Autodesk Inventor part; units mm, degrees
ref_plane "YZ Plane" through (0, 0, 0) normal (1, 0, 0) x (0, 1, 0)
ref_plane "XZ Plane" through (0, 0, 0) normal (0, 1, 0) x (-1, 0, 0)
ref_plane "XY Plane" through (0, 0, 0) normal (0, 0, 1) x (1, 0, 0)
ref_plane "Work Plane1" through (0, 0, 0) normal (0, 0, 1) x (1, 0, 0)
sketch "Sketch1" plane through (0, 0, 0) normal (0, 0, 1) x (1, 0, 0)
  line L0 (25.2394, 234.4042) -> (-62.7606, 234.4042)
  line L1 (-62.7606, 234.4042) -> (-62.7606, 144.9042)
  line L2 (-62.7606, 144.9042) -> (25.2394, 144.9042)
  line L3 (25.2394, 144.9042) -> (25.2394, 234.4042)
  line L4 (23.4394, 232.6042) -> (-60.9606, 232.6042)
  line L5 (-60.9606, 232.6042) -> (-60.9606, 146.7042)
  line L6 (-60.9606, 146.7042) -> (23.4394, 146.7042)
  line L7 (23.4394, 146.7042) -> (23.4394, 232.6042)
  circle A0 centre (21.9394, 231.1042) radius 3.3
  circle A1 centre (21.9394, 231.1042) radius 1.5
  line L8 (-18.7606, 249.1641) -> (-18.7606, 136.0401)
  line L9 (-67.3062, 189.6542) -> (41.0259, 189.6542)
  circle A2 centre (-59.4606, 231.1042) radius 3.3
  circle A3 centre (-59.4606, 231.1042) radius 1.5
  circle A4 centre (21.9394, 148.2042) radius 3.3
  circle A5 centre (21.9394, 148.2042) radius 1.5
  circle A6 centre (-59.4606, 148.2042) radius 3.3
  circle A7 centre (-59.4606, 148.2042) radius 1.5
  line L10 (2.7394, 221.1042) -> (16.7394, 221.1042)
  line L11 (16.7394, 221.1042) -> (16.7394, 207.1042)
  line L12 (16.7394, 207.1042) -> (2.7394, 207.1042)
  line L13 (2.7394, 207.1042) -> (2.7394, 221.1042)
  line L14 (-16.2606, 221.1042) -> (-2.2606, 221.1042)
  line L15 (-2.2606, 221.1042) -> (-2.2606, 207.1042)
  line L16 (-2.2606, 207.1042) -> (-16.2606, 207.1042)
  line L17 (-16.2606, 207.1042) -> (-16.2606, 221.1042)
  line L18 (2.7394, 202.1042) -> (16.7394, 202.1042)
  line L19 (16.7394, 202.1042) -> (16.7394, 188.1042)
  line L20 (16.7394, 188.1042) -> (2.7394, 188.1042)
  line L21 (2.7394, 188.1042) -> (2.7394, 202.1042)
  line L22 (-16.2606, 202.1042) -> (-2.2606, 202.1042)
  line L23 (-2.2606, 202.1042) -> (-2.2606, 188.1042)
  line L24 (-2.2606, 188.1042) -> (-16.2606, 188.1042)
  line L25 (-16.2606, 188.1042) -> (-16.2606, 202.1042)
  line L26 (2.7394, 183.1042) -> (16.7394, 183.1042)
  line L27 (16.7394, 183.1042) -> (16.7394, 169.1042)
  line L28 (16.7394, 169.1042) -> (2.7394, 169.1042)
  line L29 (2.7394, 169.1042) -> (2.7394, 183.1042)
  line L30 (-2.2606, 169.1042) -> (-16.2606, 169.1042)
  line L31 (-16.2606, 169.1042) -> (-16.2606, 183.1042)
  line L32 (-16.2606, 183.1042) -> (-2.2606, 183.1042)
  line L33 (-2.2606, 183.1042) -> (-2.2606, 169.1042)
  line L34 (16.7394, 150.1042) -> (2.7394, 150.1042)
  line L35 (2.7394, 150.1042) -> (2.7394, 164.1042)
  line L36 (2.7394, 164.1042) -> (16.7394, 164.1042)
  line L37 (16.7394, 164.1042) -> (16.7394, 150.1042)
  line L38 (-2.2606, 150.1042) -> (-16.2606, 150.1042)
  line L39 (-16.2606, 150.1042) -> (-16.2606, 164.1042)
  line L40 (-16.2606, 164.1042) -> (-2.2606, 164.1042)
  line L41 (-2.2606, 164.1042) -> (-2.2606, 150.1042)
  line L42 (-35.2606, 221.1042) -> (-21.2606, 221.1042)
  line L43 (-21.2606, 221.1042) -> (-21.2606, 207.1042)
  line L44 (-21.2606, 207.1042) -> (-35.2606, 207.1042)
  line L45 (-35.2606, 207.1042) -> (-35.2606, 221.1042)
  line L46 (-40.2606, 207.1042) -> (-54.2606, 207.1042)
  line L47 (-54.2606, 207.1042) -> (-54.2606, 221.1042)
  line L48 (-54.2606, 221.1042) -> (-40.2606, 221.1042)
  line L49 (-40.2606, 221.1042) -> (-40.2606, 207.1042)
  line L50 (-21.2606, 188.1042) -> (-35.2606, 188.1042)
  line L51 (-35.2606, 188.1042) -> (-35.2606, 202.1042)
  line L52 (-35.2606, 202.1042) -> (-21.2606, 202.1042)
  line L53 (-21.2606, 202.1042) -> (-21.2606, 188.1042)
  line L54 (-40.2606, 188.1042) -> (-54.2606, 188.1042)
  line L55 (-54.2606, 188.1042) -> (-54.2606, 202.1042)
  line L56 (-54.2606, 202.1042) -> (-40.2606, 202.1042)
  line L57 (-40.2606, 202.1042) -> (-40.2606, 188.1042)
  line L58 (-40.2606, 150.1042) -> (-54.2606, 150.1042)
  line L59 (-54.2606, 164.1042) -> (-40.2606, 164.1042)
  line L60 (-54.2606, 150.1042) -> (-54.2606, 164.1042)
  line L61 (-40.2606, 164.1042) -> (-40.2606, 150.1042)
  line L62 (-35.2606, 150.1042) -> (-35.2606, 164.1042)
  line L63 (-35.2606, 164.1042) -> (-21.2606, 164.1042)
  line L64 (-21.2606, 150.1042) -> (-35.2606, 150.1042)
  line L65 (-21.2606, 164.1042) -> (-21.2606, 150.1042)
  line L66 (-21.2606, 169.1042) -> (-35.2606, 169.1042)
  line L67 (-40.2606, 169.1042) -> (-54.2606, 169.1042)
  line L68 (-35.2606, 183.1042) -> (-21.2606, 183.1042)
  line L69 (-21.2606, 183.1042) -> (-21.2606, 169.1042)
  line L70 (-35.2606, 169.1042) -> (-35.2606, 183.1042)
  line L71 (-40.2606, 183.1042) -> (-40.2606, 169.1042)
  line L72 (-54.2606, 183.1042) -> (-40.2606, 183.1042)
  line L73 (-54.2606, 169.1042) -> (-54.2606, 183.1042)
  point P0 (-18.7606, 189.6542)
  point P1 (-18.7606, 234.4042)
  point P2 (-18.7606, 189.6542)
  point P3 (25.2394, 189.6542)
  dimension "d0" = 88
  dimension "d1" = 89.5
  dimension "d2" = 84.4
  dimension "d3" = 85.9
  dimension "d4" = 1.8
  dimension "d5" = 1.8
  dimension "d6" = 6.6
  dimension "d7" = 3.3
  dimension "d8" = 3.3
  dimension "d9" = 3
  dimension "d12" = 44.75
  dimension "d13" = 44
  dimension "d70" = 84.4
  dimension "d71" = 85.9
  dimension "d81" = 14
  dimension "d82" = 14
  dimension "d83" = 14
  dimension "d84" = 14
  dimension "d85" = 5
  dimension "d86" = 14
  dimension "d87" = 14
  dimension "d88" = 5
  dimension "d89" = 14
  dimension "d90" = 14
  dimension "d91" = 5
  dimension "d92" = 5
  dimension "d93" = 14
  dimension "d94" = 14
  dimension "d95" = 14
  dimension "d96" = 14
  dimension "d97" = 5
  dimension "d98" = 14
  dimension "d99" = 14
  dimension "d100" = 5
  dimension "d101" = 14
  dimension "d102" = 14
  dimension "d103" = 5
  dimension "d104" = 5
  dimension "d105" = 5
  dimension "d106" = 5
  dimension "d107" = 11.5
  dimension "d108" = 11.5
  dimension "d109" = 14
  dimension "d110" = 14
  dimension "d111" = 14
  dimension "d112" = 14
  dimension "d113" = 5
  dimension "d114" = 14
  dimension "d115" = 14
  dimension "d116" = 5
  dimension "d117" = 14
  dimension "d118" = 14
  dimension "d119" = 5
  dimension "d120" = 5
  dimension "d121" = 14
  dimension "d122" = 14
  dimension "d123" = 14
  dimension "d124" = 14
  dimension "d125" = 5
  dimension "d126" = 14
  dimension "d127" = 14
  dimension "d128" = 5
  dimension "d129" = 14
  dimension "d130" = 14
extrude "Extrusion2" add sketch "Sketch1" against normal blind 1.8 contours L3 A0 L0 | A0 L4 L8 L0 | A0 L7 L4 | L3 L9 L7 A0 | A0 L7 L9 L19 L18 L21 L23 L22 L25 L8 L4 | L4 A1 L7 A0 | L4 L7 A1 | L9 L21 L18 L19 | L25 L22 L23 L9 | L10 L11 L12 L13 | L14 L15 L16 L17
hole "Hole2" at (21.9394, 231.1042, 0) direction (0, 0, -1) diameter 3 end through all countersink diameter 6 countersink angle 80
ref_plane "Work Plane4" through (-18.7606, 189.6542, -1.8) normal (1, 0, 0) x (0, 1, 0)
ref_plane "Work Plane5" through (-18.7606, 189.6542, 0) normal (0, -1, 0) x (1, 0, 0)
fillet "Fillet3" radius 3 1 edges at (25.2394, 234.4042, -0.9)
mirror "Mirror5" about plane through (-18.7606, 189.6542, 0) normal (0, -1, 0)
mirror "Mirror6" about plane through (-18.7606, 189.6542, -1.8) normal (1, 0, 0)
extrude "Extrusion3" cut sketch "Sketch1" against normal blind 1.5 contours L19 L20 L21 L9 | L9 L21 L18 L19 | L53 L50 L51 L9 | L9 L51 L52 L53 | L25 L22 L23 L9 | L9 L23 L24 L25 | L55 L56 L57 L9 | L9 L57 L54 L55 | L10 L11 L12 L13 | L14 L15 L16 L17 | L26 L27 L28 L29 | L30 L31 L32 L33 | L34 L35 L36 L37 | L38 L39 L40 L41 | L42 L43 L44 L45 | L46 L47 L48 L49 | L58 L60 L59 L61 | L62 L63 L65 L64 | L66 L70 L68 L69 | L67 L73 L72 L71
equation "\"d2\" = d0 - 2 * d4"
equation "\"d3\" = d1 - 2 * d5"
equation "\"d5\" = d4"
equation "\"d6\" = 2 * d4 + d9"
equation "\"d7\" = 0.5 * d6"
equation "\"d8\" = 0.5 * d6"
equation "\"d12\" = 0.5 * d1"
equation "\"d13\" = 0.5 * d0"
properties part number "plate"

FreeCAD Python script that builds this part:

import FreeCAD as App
import Part
import Sketcher
from FreeCAD import Vector
Q = App.Units.Quantity


def edges_at(feature, points):
    """Names of the edges that pass closest to the given points."""
    edges = feature.Shape.Edges
    near = lambda p: min(range(len(edges)), key=lambda i: edges[i].distToShape(Part.Vertex(*p))[0])
    return sorted({f"Edge{near(p) + 1}" for p in points})

doc = App.newDocument("Part")
params = doc.addObject("Spreadsheet::Sheet", "Params")
for row, (alias, value) in enumerate([
    ("sketch1_diameter", "3 mm"),
    ("sketch1_width", "44 mm"),
    ("sketch1_height", "44.75 mm"),
    ("pad1_length", "1.8 mm"),
    ("sketch2_diameter", "3 mm"),
    ("hole_diameter", "3 mm"),
    ("hole_csink_diameter", "6 mm"),
    ("fillet_radius", "3 mm"),
    ("sketch3_width", "14 mm"),
    ("pocket1_length", "1.5 mm"),
], start=1):
    params.set(f"A{row}", alias)
    params.set(f"B{row}", "=" + value)
    params.setAlias(f"B{row}", alias)

body = doc.addObject("PartDesign::Body", "Body")

sketch1 = body.newObject("Sketcher::SketchObject", "Sketch")
sketch1.AttachmentSupport = (doc.getObject("XY_Plane"), [""])
sketch1.MapMode = "FlatFace"
sketch1.addGeometry([
    Part.LineSegment(Vector(25.2, 234.4, 0), Vector(-18.8, 234.4, 0)),
    Part.LineSegment(Vector(-18.8, 234.4, 0), Vector(-18.8, 189.7, 0)),
    Part.LineSegment(Vector(-18.8, 189.7, 0), Vector(25.2, 189.7, 0)),
    Part.LineSegment(Vector(25.2, 189.7, 0), Vector(25.2, 234.4, 0)),
    Part.Circle(Vector(21.9, 231.1, 0), Vector(0, 0, 1), 1.5),
], False)
sketch1.addConstraint([
    Sketcher.Constraint("Coincident", 0, 2, 1, 1),
    Sketcher.Constraint("Coincident", 1, 2, 2, 1),
    Sketcher.Constraint("Coincident", 2, 2, 3, 1),
    Sketcher.Constraint("Coincident", 3, 2, 0, 1),
    Sketcher.Constraint("Horizontal", 0),
    Sketcher.Constraint("Vertical", 1),
    Sketcher.Constraint("Horizontal", 2),
    Sketcher.Constraint("Vertical", 3),
    Sketcher.Constraint("Diameter", 4, Q("3 mm")),
    Sketcher.Constraint("DistanceX", 0, 2, 0, 1, Q("44 mm")),
    Sketcher.Constraint("DistanceY", 1, 2, 1, 1, Q("44.75 mm")),
    Sketcher.Constraint("DistanceY", 4, 3, 0, 2, Q("3.3 mm")),
    Sketcher.Constraint("DistanceX", 4, 3, 2, 2, Q("3.3 mm")),
    Sketcher.Constraint("DistanceX", -1, 1, 4, 3, Q("21.9394 mm")),
    Sketcher.Constraint("DistanceY", -1, 1, 4, 3, Q("231.1042 mm")),
])
sketch1.setExpression("Constraints[8]", "Params.sketch1_diameter")
sketch1.setExpression("Constraints[9]", "Params.sketch1_width")
sketch1.setExpression("Constraints[10]", "Params.sketch1_height")
pad1 = body.newObject("PartDesign::Pad", "Pad")
pad1.Profile = sketch1
pad1.setExpression("Length", "Params.pad1_length")
pad1.Reversed = True

sketch2 = body.newObject("Sketcher::SketchObject", "Sketch001")
sketch2.AttachmentSupport = (doc.getObject("XY_Plane"), [""])
sketch2.MapMode = "FlatFace"
sketch2.addGeometry(Part.Circle(Vector(21.9, 231.1, 0), Vector(0, 0, 1), 1.5), False)
sketch2.addConstraint([
    Sketcher.Constraint("Diameter", 0, Q("3 mm")),
    Sketcher.Constraint("DistanceX", -1, 1, 0, 3, Q("21.9394 mm")),
    Sketcher.Constraint("DistanceY", -1, 1, 0, 3, Q("231.1042 mm")),
])
sketch2.setExpression("Constraints[0]", "Params.sketch2_diameter")
doc.recompute()
hole = body.newObject("PartDesign::Hole", "Hole")
hole.Profile = sketch2
hole.ThreadType = "None"
hole.setExpression("Diameter", "Params.hole_diameter")
hole.DepthType = "ThroughAll"
hole.HoleCutType = "Countersink"
hole.setExpression("HoleCutDiameter", "Params.hole_csink_diameter")
hole.HoleCutCountersinkAngle = 80
doc.recompute()

fillet = body.newObject("PartDesign::Fillet", "Fillet")
fillet.Base = (hole, edges_at(hole, [(25.239, 234.404, -0.9)]))
fillet.setExpression("Radius", "Params.fillet_radius")
doc.recompute()

datumplane = body.newObject("PartDesign::Plane", "DatumPlane")
datumplane.AttachmentSupport = (doc.getObject("XZ_Plane"), [""])
datumplane.MapMode = "FlatFace"
datumplane.AttachmentOffset = App.Placement(Vector(0, 0, -189.6542), App.Rotation())
mirrored = body.newObject("PartDesign::Mirrored", "Mirrored")
mirrored.TransformMode = "Transform body"
mirrored.MirrorPlane = (datumplane, [""])
body.Tip = mirrored
doc.recompute()

datumplane2 = body.newObject("PartDesign::Plane", "DatumPlane001")
datumplane2.AttachmentSupport = (doc.getObject("YZ_Plane"), [""])
datumplane2.MapMode = "FlatFace"
datumplane2.AttachmentOffset = App.Placement(Vector(0, 0, -18.7606), App.Rotation())
mirrored2 = body.newObject("PartDesign::Mirrored", "Mirrored001")
mirrored2.TransformMode = "Transform body"
mirrored2.MirrorPlane = (datumplane2, [""])
body.Tip = mirrored2

sketch3 = body.newObject("Sketcher::SketchObject", "Sketch002")
sketch3.AttachmentSupport = (doc.getObject("XY_Plane"), [""])
sketch3.MapMode = "FlatFace"
sketch3.addGeometry([
    Part.LineSegment(Vector(17, 188, 0), Vector(17, 202, 0)),
    Part.LineSegment(Vector(17, 202, 0), Vector(3, 202, 0)),
    Part.LineSegment(Vector(3, 202, 0), Vector(3, 188, 0)),
    Part.LineSegment(Vector(3, 188, 0), Vector(17, 188, 0)),
    Part.LineSegment(Vector(-21, 188, 0), Vector(-21, 202, 0)),
    Part.LineSegment(Vector(-21, 202, 0), Vector(-35, 202, 0)),
    Part.LineSegment(Vector(-35, 202, 0), Vector(-35, 188, 0)),
    Part.LineSegment(Vector(-35, 188, 0), Vector(-21, 188, 0)),
    Part.LineSegment(Vector(-16, 202, 0), Vector(-16, 188, 0)),
    Part.LineSegment(Vector(-16, 188, 0), Vector(-2, 188, 0)),
    Part.LineSegment(Vector(-2, 188, 0), Vector(-2, 202, 0)),
    Part.LineSegment(Vector(-2, 202, 0), Vector(-16, 202, 0)),
    Part.LineSegment(Vector(-54, 202, 0), Vector(-54, 188, 0)),
    Part.LineSegment(Vector(-54, 188, 0), Vector(-40, 188, 0)),
    Part.LineSegment(Vector(-40, 188, 0), Vector(-40, 202, 0)),
    Part.LineSegment(Vector(-40, 202, 0), Vector(-54, 202, 0)),
    Part.LineSegment(Vector(17, 221, 0), Vector(3, 221, 0)),
    Part.LineSegment(Vector(3, 221, 0), Vector(3, 207, 0)),
    Part.LineSegment(Vector(3, 207, 0), Vector(17, 207, 0)),
    Part.LineSegment(Vector(17, 207, 0), Vector(17, 221, 0)),
    Part.LineSegment(Vector(-2, 221, 0), Vector(-16, 221, 0)),
    Part.LineSegment(Vector(-16, 221, 0), Vector(-16, 207, 0)),
    Part.LineSegment(Vector(-16, 207, 0), Vector(-2, 207, 0)),
    Part.LineSegment(Vector(-2, 207, 0), Vector(-2, 221, 0)),
    Part.LineSegment(Vector(17, 183, 0), Vector(3, 183, 0)),
    Part.LineSegment(Vector(3, 183, 0), Vector(3, 169, 0)),
    Part.LineSegment(Vector(3, 169, 0), Vector(17, 169, 0)),
    Part.LineSegment(Vector(17, 169, 0), Vector(17, 183, 0)),
    Part.LineSegment(Vector(-16, 169, 0), Vector(-2, 169, 0)),
    Part.LineSegment(Vector(-2, 169, 0), Vector(-2, 183, 0)),
    Part.LineSegment(Vector(-2, 183, 0), Vector(-16, 183, 0)),
    Part.LineSegment(Vector(-16, 183, 0), Vector(-16, 169, 0)),
    Part.LineSegment(Vector(3, 150, 0), Vector(17, 150, 0)),
    Part.LineSegment(Vector(17, 150, 0), Vector(17, 164, 0)),
    Part.LineSegment(Vector(17, 164, 0), Vector(3, 164, 0)),
    Part.LineSegment(Vector(3, 164, 0), Vector(3, 150, 0)),
    Part.LineSegment(Vector(-16, 150, 0), Vector(-2, 150, 0)),
    Part.LineSegment(Vector(-2, 150, 0), Vector(-2, 164, 0)),
    Part.LineSegment(Vector(-2, 164, 0), Vector(-16, 164, 0)),
    Part.LineSegment(Vector(-16, 164, 0), Vector(-16, 150, 0)),
    Part.LineSegment(Vector(-21, 221, 0), Vector(-35, 221, 0)),
    Part.LineSegment(Vector(-35, 221, 0), Vector(-35, 207, 0)),
    Part.LineSegment(Vector(-35, 207, 0), Vector(-21, 207, 0)),
    Part.LineSegment(Vector(-21, 207, 0), Vector(-21, 221, 0)),
    Part.LineSegment(Vector(-54, 207, 0), Vector(-40, 207, 0)),
    Part.LineSegment(Vector(-40, 207, 0), Vector(-40, 221, 0)),
    Part.LineSegment(Vector(-40, 221, 0), Vector(-54, 221, 0)),
    Part.LineSegment(Vector(-54, 221, 0), Vector(-54, 207, 0)),
    Part.LineSegment(Vector(-54, 150, 0), Vector(-40, 150, 0)),
    Part.LineSegment(Vector(-40, 150, 0), Vector(-40, 164, 0)),
    Part.LineSegment(Vector(-40, 164, 0), Vector(-54, 164, 0)),
    Part.LineSegment(Vector(-54, 164, 0), Vector(-54, 150, 0)),
    Part.LineSegment(Vector(-35, 164, 0), Vector(-35, 150, 0)),
    Part.LineSegment(Vector(-35, 150, 0), Vector(-21, 150, 0)),
    Part.LineSegment(Vector(-21, 150, 0), Vector(-21, 164, 0)),
    Part.LineSegment(Vector(-21, 164, 0), Vector(-35, 164, 0)),
    Part.LineSegment(Vector(-35, 169, 0), Vector(-21, 169, 0)),
    Part.LineSegment(Vector(-21, 169, 0), Vector(-21, 183, 0)),
    Part.LineSegment(Vector(-21, 183, 0), Vector(-35, 183, 0)),
    Part.LineSegment(Vector(-35, 183, 0), Vector(-35, 169, 0)),
    Part.LineSegment(Vector(-54, 169, 0), Vector(-40, 169, 0)),
    Part.LineSegment(Vector(-40, 169, 0), Vector(-40, 183, 0)),
    Part.LineSegment(Vector(-40, 183, 0), Vector(-54, 183, 0)),
    Part.LineSegment(Vector(-54, 183, 0), Vector(-54, 169, 0)),
], False)
sketch3.addConstraint([
    Sketcher.Constraint("Coincident", 0, 2, 1, 1),
    Sketcher.Constraint("Coincident", 1, 2, 2, 1),
    Sketcher.Constraint("Coincident", 2, 2, 3, 1),
    Sketcher.Constraint("Coincident", 3, 2, 0, 1),
    Sketcher.Constraint("Coincident", 4, 2, 5, 1),
    Sketcher.Constraint("Coincident", 5, 2, 6, 1),
    Sketcher.Constraint("Coincident", 6, 2, 7, 1),
    Sketcher.Constraint("Coincident", 7, 2, 4, 1),
    Sketcher.Constraint("Coincident", 8, 2, 9, 1),
    Sketcher.Constraint("Coincident", 9, 2, 10, 1),
    Sketcher.Constraint("Coincident", 10, 2, 11, 1),
    Sketcher.Constraint("Coincident", 11, 2, 8, 1),
    Sketcher.Constraint("Coincident", 12, 2, 13, 1),
    Sketcher.Constraint("Coincident", 13, 2, 14, 1),
    Sketcher.Constraint("Coincident", 14, 2, 15, 1),
    Sketcher.Constraint("Coincident", 15, 2, 12, 1),
    Sketcher.Constraint("Coincident", 16, 2, 17, 1),
    Sketcher.Constraint("Coincident", 17, 2, 18, 1),
    Sketcher.Constraint("Coincident", 18, 2, 19, 1),
    Sketcher.Constraint("Coincident", 19, 2, 16, 1),
    Sketcher.Constraint("Coincident", 20, 2, 21, 1),
    Sketcher.Constraint("Coincident", 21, 2, 22, 1),
    Sketcher.Constraint("Coincident", 22, 2, 23, 1),
    Sketcher.Constraint("Coincident", 23, 2, 20, 1),
    Sketcher.Constraint("Coincident", 24, 2, 25, 1),
    Sketcher.Constraint("Coincident", 25, 2, 26, 1),
    Sketcher.Constraint("Coincident", 26, 2, 27, 1),
    Sketcher.Constraint("Coincident", 27, 2, 24, 1),
    Sketcher.Constraint("Coincident", 28, 2, 29, 1),
    Sketcher.Constraint("Coincident", 29, 2, 30, 1),
    Sketcher.Constraint("Coincident", 30, 2, 31, 1),
    Sketcher.Constraint("Coincident", 31, 2, 28, 1),
    Sketcher.Constraint("Coincident", 32, 2, 33, 1),
    Sketcher.Constraint("Coincident", 33, 2, 34, 1),
    Sketcher.Constraint("Coincident", 34, 2, 35, 1),
    Sketcher.Constraint("Coincident", 35, 2, 32, 1),
    Sketcher.Constraint("Coincident", 36, 2, 37, 1),
    Sketcher.Constraint("Coincident", 37, 2, 38, 1),
    Sketcher.Constraint("Coincident", 38, 2, 39, 1),
    Sketcher.Constraint("Coincident", 39, 2, 36, 1),
    Sketcher.Constraint("Coincident", 40, 2, 41, 1),
    Sketcher.Constraint("Coincident", 41, 2, 42, 1),
    Sketcher.Constraint("Coincident", 42, 2, 43, 1),
    Sketcher.Constraint("Coincident", 43, 2, 40, 1),
    Sketcher.Constraint("Coincident", 44, 2, 45, 1),
    Sketcher.Constraint("Coincident", 45, 2, 46, 1),
    Sketcher.Constraint("Coincident", 46, 2, 47, 1),
    Sketcher.Constraint("Coincident", 47, 2, 44, 1),
    Sketcher.Constraint("Coincident", 48, 2, 49, 1),
    Sketcher.Constraint("Coincident", 49, 2, 50, 1),
    Sketcher.Constraint("Coincident", 50, 2, 51, 1),
    Sketcher.Constraint("Coincident", 51, 2, 48, 1),
    Sketcher.Constraint("Coincident", 52, 2, 53, 1),
    Sketcher.Constraint("Coincident", 53, 2, 54, 1),
    Sketcher.Constraint("Coincident", 54, 2, 55, 1),
    Sketcher.Constraint("Coincident", 55, 2, 52, 1),
    Sketcher.Constraint("Coincident", 56, 2, 57, 1),
    Sketcher.Constraint("Coincident", 57, 2, 58, 1),
    Sketcher.Constraint("Coincident", 58, 2, 59, 1),
    Sketcher.Constraint("Coincident", 59, 2, 56, 1),
    Sketcher.Constraint("Coincident", 60, 2, 61, 1),
    Sketcher.Constraint("Coincident", 61, 2, 62, 1),
    Sketcher.Constraint("Coincident", 62, 2, 63, 1),
    Sketcher.Constraint("Coincident", 63, 2, 60, 1),
    Sketcher.Constraint("Vertical", 0),
    Sketcher.Constraint("Horizontal", 1),
    Sketcher.Constraint("Vertical", 2),
    Sketcher.Constraint("Horizontal", 3),
    Sketcher.Constraint("Vertical", 4),
    Sketcher.Constraint("Horizontal", 5),
    Sketcher.Constraint("Vertical", 6),
    Sketcher.Constraint("Horizontal", 7),
    Sketcher.Constraint("Vertical", 8),
    Sketcher.Constraint("Horizontal", 9),
    Sketcher.Constraint("Vertical", 10),
    Sketcher.Constraint("Horizontal", 11),
    Sketcher.Constraint("Vertical", 12),
    Sketcher.Constraint("Horizontal", 13),
    Sketcher.Constraint("Vertical", 14),
    Sketcher.Constraint("Horizontal", 15),
    Sketcher.Constraint("Horizontal", 16),
    Sketcher.Constraint("Vertical", 17),
    Sketcher.Constraint("Horizontal", 18),
    Sketcher.Constraint("Vertical", 19),
    Sketcher.Constraint("Horizontal", 20),
    Sketcher.Constraint("Vertical", 21),
    Sketcher.Constraint("Horizontal", 22),
    Sketcher.Constraint("Vertical", 23),
    Sketcher.Constraint("Horizontal", 24),
    Sketcher.Constraint("Vertical", 25),
    Sketcher.Constraint("Horizontal", 26),
    Sketcher.Constraint("Vertical", 27),
    Sketcher.Constraint("Horizontal", 28),
    Sketcher.Constraint("Vertical", 29),
    Sketcher.Constraint("Horizontal", 30),
    Sketcher.Constraint("Vertical", 31),
    Sketcher.Constraint("Horizontal", 32),
    Sketcher.Constraint("Vertical", 33),
    Sketcher.Constraint("Horizontal", 34),
    Sketcher.Constraint("Vertical", 35),
    Sketcher.Constraint("Horizontal", 36),
    Sketcher.Constraint("Vertical", 37),
    Sketcher.Constraint("Horizontal", 38),
    Sketcher.Constraint("Vertical", 39),
    Sketcher.Constraint("Horizontal", 40),
    Sketcher.Constraint("Vertical", 41),
    Sketcher.Constraint("Horizontal", 42),
    Sketcher.Constraint("Vertical", 43),
    Sketcher.Constraint("Horizontal", 44),
    Sketcher.Constraint("Vertical", 45),
    Sketcher.Constraint("Horizontal", 46),
    Sketcher.Constraint("Vertical", 47),
    Sketcher.Constraint("Horizontal", 48),
    Sketcher.Constraint("Vertical", 49),
    Sketcher.Constraint("Horizontal", 50),
    Sketcher.Constraint("Vertical", 51),
    Sketcher.Constraint("Vertical", 52),
    Sketcher.Constraint("Horizontal", 53),
    Sketcher.Constraint("Vertical", 54),
    Sketcher.Constraint("Horizontal", 55),
    Sketcher.Constraint("Horizontal", 56),
    Sketcher.Constraint("Vertical", 57),
    Sketcher.Constraint("Horizontal", 58),
    Sketcher.Constraint("Vertical", 59),
    Sketcher.Constraint("Horizontal", 60),
    Sketcher.Constraint("Vertical", 61),
    Sketcher.Constraint("Horizontal", 62),
    Sketcher.Constraint("Vertical", 63),
    Sketcher.Constraint("Horizontal", 1, 2, 4, 2),
    Sketcher.Constraint("Horizontal", 3, 2, 6, 2),
    Sketcher.Constraint("Horizontal", 7, 2, 8, 2),
    Sketcher.Constraint("Horizontal", 5, 2, 10, 2),
    Sketcher.Constraint("Horizontal", 9, 2, 12, 2),
    Sketcher.Constraint("Horizontal", 11, 2, 14, 2),
    Sketcher.Constraint("Horizontal", 19, 2, 20, 2),
    Sketcher.Constraint("Horizontal", 18, 2, 21, 2),
    Sketcher.Constraint("Horizontal", 26, 2, 28, 2),
    Sketcher.Constraint("Horizontal", 27, 2, 29, 2),
    Sketcher.Constraint("Horizontal", 35, 2, 36, 2),
    Sketcher.Constraint("Horizontal", 34, 2, 37, 2),
    Sketcher.Constraint("Horizontal", 23, 2, 40, 2),
    Sketcher.Constraint("Horizontal", 22, 2, 41, 2),
    Sketcher.Constraint("Horizontal", 42, 2, 44, 2),
    Sketcher.Constraint("Horizontal", 43, 2, 45, 2),
    Sketcher.Constraint("Horizontal", 39, 2, 48, 2),
    Sketcher.Constraint("Horizontal", 38, 2, 49, 2),
    Sketcher.Constraint("Horizontal", 51, 2, 52, 2),
    Sketcher.Constraint("Horizontal", 50, 2, 54, 2),
    Sketcher.Constraint("Horizontal", 31, 2, 56, 2),
    Sketcher.Constraint("Horizontal", 30, 2, 57, 2),
    Sketcher.Constraint("Horizontal", 59, 2, 60, 2),
    Sketcher.Constraint("Horizontal", 58, 2, 61, 2),
    Sketcher.Constraint("Vertical", 2, 2, 16, 2),
    Sketcher.Constraint("Vertical", 3, 2, 18, 2),
    Sketcher.Constraint("Vertical", 11, 2, 20, 2),
    Sketcher.Constraint("Vertical", 10, 2, 22, 2),
    Sketcher.Constraint("Vertical", 17, 2, 24, 2),
    Sketcher.Constraint("Vertical", 19, 2, 26, 2),
    Sketcher.Constraint("Vertical", 23, 2, 28, 2),
    Sketcher.Constraint("Vertical", 21, 2, 30, 2),
    Sketcher.Constraint("Vertical", 27, 2, 32, 2),
    Sketcher.Constraint("Vertical", 25, 2, 34, 2),
    Sketcher.Constraint("Vertical", 29, 2, 36, 2),
    Sketcher.Constraint("Vertical", 31, 2, 38, 2),
    Sketcher.Constraint("Vertical", 6, 2, 40, 2),
    Sketcher.Constraint("Vertical", 7, 2, 42, 2),
    Sketcher.Constraint("Vertical", 14, 2, 44, 2),
    Sketcher.Constraint("Vertical", 15, 2, 46, 2),
    Sketcher.Constraint("Vertical", 45, 2, 48, 2),
    Sketcher.Constraint("Vertical", 47, 2, 50, 2),
    Sketcher.Constraint("Vertical", 41, 2, 52, 2),
    Sketcher.Constraint("Vertical", 43, 2, 53, 2),
    Sketcher.Constraint("Vertical", 54, 2, 56, 2),
    Sketcher.Constraint("Vertical", 55, 2, 58, 2),
    Sketcher.Constraint("Vertical", 49, 2, 60, 2),
    Sketcher.Constraint("Vertical", 51, 2, 62, 2),
    Sketcher.Constraint("Equal", 3, 5),
    Sketcher.Constraint("Equal", 7, 9),
    Sketcher.Constraint("Equal", 11, 13),
    Sketcher.Constraint("Equal", 62, 0),
    Sketcher.Constraint("Equal", 14, 17),
    Sketcher.Constraint("Equal", 23, 25),
    Sketcher.Constraint("Equal", 31, 33),
    Sketcher.Constraint("DistanceX", 1, 2, 1, 1, Q("14 mm")),
    Sketcher.Constraint("DistanceX", -1, 1, 0, 2, Q("16.7394 mm")),
    Sketcher.Constraint("DistanceY", -1, 1, 0, 2, Q("202.1042 mm")),
    Sketcher.Constraint("DistanceX", 4, 2, -1, 1, Q("21.2606 mm")),
    Sketcher.Constraint("DistanceX", 8, 2, -1, 1, Q("16.2606 mm")),
    Sketcher.Constraint("DistanceX", 12, 2, -1, 1, Q("54.2606 mm")),
    Sketcher.Constraint("DistanceY", -1, 1, 16, 2, Q("221.1042 mm")),
    Sketcher.Constraint("DistanceY", -1, 1, 24, 2, Q("183.1042 mm")),
    Sketcher.Constraint("DistanceY", -1, 1, 32, 2, Q("150.1042 mm")),
])
sketch3.setExpression("Constraints[183]", "Params.sketch3_width")
pocket1 = body.newObject("PartDesign::Pocket", "Pocket")
pocket1.Profile = sketch3
pocket1.setExpression("Length", "Params.pocket1_length")

doc.recompute()
